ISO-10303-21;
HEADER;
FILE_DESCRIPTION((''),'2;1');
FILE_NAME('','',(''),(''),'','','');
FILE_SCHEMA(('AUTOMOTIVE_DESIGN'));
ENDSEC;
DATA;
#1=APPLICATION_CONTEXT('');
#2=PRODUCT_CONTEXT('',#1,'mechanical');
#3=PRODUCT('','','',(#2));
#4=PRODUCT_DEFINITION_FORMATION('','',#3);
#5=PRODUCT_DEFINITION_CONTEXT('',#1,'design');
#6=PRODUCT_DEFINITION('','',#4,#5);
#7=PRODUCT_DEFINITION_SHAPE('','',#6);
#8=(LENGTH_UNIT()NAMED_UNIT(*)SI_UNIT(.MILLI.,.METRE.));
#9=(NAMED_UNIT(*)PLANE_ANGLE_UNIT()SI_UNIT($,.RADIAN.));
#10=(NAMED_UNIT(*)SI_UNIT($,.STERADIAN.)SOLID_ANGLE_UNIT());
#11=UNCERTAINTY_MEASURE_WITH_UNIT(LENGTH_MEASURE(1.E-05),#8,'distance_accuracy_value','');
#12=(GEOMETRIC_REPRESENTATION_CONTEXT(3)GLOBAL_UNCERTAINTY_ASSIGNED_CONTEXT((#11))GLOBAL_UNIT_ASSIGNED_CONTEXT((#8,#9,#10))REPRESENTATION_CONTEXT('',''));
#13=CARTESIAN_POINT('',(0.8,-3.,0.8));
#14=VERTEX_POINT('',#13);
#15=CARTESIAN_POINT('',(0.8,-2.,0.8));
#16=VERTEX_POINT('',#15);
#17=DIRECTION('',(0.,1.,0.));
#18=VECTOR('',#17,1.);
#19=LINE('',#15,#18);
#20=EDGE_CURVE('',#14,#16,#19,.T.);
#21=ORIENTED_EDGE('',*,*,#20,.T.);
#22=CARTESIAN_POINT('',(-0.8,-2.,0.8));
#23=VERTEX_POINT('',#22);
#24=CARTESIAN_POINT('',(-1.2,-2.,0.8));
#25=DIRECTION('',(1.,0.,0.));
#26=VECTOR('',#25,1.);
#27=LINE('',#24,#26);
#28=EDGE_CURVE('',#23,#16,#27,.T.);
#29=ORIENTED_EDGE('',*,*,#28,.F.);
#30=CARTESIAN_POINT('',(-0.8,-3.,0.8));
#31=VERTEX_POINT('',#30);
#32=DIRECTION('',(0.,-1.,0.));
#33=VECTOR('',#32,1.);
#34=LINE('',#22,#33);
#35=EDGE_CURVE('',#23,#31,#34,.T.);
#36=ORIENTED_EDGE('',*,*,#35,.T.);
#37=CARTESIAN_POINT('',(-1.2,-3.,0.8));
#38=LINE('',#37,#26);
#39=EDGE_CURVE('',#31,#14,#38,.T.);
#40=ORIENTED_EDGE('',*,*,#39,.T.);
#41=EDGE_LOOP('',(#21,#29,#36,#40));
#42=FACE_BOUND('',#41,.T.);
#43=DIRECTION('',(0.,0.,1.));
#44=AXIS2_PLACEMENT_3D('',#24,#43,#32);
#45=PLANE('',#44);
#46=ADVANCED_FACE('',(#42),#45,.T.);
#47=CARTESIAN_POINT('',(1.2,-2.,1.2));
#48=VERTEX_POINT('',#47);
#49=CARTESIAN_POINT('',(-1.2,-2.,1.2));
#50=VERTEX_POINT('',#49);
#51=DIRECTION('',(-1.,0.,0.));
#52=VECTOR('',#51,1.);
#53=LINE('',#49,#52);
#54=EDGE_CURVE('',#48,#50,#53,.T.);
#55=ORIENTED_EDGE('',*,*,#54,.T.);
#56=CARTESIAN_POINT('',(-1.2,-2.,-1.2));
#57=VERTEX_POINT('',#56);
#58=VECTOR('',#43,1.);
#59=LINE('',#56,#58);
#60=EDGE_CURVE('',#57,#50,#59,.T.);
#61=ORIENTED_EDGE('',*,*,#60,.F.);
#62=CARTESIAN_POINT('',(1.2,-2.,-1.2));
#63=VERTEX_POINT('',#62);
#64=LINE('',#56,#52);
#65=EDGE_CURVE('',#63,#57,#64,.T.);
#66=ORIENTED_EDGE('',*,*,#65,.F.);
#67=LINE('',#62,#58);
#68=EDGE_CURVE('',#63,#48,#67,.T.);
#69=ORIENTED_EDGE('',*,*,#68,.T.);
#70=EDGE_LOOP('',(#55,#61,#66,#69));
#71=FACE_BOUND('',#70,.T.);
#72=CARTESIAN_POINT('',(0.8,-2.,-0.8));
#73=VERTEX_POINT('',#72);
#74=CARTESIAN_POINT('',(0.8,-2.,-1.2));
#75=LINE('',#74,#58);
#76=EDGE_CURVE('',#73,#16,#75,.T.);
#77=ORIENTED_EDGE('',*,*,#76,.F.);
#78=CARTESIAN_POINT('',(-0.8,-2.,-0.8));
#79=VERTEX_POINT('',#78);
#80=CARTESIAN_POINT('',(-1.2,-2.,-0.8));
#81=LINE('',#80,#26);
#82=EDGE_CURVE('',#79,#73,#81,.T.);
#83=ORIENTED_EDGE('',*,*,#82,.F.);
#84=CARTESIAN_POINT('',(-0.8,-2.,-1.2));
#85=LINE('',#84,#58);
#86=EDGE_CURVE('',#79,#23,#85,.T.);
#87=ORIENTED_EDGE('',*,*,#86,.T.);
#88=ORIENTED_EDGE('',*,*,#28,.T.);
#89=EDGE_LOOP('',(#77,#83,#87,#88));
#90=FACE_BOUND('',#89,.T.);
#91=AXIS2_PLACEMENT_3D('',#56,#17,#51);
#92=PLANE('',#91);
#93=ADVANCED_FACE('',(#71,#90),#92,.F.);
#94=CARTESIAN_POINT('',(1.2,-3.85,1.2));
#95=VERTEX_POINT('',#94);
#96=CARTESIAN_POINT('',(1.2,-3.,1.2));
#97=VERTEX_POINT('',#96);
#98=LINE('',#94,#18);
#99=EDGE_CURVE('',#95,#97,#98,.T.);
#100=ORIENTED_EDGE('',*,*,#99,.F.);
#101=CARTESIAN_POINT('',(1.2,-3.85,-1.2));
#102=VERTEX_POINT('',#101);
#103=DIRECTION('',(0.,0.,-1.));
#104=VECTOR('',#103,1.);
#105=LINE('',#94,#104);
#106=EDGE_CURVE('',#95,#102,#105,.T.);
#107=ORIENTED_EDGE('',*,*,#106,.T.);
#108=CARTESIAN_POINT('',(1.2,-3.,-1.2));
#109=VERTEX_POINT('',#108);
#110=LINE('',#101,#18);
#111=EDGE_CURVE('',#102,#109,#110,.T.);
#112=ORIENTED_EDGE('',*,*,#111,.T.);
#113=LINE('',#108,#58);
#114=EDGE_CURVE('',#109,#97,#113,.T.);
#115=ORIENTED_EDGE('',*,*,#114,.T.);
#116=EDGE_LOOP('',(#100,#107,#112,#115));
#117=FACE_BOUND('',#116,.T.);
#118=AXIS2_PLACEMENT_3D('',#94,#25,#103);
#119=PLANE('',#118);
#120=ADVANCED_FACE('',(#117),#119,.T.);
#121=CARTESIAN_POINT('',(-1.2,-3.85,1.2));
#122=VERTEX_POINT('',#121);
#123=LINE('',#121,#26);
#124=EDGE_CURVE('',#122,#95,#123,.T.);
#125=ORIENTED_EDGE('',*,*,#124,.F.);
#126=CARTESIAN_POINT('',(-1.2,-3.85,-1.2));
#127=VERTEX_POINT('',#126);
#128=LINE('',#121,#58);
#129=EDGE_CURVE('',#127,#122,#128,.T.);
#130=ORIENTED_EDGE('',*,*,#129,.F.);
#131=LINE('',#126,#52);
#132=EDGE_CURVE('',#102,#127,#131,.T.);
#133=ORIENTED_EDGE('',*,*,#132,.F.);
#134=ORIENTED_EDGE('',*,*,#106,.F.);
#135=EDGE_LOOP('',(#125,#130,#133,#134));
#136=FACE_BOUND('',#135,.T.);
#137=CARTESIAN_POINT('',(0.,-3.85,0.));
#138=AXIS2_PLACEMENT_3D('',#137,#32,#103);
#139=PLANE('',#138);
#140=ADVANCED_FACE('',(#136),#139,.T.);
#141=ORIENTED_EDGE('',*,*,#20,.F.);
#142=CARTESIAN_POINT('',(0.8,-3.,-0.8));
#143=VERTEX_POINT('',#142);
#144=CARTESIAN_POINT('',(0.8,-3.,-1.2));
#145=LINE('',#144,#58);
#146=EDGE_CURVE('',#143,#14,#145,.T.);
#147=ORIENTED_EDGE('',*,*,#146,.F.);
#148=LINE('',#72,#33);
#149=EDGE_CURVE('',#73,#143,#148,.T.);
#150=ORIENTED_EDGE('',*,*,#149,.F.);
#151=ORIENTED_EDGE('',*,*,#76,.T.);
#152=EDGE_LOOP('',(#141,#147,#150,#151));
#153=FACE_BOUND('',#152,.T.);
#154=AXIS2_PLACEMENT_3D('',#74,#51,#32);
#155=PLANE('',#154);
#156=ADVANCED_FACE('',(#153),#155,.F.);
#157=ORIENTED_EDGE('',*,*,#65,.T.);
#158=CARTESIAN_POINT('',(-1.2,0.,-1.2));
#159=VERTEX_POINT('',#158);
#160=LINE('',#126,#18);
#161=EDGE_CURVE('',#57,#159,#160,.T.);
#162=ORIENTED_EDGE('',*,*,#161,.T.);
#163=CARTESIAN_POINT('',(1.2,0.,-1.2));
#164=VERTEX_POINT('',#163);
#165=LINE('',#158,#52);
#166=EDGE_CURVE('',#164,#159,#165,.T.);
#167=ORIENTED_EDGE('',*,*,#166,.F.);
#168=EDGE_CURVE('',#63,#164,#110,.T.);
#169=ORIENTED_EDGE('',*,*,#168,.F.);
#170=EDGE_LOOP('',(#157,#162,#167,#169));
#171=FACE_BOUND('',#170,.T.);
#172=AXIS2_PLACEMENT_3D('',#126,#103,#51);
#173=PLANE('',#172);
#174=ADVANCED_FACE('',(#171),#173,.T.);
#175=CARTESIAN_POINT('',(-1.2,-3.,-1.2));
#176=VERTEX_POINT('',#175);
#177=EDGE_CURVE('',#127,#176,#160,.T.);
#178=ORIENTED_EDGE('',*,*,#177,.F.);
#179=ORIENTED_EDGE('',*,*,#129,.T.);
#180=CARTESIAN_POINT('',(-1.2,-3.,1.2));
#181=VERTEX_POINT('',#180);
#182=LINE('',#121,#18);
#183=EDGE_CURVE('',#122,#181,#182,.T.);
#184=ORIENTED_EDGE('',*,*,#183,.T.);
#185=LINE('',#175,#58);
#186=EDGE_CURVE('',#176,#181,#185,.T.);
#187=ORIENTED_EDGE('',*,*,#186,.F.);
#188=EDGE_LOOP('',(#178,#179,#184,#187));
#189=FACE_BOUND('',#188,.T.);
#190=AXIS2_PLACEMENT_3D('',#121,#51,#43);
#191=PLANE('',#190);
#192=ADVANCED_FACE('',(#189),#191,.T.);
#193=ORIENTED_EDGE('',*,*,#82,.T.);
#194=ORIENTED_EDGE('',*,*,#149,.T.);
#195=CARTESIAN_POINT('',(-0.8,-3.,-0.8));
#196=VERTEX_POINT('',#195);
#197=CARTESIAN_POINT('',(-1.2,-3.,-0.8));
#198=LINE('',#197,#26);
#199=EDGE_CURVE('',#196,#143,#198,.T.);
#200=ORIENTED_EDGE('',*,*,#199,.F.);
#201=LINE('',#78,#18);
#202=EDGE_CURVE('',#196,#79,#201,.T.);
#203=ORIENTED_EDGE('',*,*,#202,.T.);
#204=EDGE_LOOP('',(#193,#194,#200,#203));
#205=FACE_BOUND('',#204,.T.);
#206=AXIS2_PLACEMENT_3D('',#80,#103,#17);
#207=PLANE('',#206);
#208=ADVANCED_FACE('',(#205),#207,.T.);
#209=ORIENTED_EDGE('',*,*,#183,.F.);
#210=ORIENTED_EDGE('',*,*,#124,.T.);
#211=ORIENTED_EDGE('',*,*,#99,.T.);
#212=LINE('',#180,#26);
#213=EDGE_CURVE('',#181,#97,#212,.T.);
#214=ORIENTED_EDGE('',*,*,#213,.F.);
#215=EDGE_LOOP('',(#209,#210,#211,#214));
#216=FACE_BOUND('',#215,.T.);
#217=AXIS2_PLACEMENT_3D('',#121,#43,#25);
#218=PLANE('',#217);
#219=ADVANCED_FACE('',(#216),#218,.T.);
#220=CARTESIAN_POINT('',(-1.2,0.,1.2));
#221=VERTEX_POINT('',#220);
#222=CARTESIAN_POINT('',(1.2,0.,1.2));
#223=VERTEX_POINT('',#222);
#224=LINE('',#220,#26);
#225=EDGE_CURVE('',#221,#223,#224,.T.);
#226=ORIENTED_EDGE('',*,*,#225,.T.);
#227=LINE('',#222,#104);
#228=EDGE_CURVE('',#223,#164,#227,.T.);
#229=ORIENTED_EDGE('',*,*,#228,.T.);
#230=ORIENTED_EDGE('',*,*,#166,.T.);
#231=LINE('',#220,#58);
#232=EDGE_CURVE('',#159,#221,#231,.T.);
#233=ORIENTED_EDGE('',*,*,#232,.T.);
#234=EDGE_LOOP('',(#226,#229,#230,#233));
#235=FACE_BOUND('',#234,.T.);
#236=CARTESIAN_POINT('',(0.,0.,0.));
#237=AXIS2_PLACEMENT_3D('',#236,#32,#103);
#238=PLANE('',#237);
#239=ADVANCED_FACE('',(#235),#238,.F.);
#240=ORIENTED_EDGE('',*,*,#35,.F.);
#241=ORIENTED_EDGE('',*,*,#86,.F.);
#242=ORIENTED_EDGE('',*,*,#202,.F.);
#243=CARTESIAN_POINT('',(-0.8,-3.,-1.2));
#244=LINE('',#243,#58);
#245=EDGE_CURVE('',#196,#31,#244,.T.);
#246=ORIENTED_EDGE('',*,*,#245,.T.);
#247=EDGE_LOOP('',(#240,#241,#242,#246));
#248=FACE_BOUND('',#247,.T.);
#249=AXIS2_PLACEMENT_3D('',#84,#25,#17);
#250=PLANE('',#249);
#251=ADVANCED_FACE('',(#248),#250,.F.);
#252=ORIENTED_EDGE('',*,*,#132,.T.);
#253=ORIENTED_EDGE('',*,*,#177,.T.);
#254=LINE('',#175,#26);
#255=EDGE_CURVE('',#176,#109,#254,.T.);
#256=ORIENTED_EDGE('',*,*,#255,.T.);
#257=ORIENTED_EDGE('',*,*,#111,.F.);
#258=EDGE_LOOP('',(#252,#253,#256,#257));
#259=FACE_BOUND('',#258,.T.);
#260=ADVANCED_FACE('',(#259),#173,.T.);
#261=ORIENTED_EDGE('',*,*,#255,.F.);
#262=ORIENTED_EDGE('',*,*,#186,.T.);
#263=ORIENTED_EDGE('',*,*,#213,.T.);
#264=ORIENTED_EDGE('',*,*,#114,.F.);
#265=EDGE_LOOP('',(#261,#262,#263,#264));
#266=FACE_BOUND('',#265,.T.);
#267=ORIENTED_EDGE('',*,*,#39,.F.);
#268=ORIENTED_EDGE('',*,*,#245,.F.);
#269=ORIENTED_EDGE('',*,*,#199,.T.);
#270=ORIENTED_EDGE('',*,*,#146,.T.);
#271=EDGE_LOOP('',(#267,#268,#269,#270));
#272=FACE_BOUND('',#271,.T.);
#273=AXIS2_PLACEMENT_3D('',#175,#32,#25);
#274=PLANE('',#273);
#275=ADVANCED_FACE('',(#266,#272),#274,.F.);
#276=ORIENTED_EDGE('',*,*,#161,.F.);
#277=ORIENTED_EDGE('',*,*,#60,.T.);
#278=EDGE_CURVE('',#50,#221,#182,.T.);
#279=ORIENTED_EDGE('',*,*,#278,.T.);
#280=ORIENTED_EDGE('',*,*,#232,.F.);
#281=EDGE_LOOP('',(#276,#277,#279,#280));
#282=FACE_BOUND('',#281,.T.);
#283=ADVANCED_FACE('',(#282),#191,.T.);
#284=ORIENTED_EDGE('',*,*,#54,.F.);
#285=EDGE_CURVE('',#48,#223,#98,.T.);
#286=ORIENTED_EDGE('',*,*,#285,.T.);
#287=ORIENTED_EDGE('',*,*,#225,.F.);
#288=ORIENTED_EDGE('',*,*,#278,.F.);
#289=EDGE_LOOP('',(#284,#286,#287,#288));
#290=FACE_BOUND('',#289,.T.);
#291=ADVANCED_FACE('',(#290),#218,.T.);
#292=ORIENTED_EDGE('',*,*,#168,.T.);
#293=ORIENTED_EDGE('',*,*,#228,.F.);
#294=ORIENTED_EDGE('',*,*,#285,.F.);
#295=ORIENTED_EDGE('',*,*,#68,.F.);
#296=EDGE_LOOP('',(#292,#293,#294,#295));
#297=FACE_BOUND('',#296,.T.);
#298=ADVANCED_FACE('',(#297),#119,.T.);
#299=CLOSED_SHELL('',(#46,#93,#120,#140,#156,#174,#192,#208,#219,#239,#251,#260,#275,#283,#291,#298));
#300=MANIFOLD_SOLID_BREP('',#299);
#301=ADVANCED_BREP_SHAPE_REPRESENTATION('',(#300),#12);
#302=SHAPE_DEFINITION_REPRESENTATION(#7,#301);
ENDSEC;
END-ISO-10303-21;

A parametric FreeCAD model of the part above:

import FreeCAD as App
import Part
import Sketcher

V = App.Vector
Q = App.Units.Quantity

doc = App.newDocument("Part")
body = doc.addObject("PartDesign::Body", "Body")

# Sketch on XZ plane
sketch1 = body.newObject("Sketcher::SketchObject", "Sketch")
sketch1.AttachmentSupport = (doc.getObject("XZ_Plane"), [""])
sketch1.MapMode = "FlatFace"
sketch1.addGeometry(Part.LineSegment(V(-1.2, -1.2, 0), V(-1.2, 1.2, 0)), False)
sketch1.addGeometry(Part.LineSegment(V(-1.2, 1.2, 0), V(1.2, 1.2, 0)), False)
sketch1.addGeometry(Part.LineSegment(V(1.2, 1.2, 0), V(1.2, -1.2, 0)), False)
sketch1.addGeometry(Part.LineSegment(V(1.2, -1.2, 0), V(-1.2, -1.2, 0)), False)
sketch1.addConstraint(Sketcher.Constraint("Coincident", 0, 2, 1, 1))
sketch1.addConstraint(Sketcher.Constraint("Coincident", 1, 2, 2, 1))
sketch1.addConstraint(Sketcher.Constraint("Coincident", 2, 2, 3, 1))
sketch1.addConstraint(Sketcher.Constraint("Coincident", 3, 2, 0, 1))
sketch1.addConstraint(Sketcher.Constraint("Vertical", 0))
sketch1.addConstraint(Sketcher.Constraint("Horizontal", 1))
sketch1.addConstraint(Sketcher.Constraint("Vertical", 2))
sketch1.addConstraint(Sketcher.Constraint("Horizontal", 3))
sketch1.addConstraint(Sketcher.Constraint("Symmetric", 0, 2, 2, 2, -1, 1))
sketch1.addConstraint(Sketcher.Constraint("Equal", 3, 0))
sketch1.addConstraint(Sketcher.Constraint("DistanceX", 1, 1, 1, 2, Q("2.4 mm")))
pad1 = body.newObject("PartDesign::Pad", "Pad")
pad1.Profile = sketch1
pad1.Length = 3.85

# Sketch on XY plane
sketch2 = body.newObject("Sketcher::SketchObject", "Sketch001")
sketch2.AttachmentSupport = (doc.getObject("XY_Plane"), [""])
sketch2.MapMode = "FlatFace"
sketch2.AttachmentOffset = App.Placement(V(0, 0, 1.2), App.Rotation())
sketch2.addGeometry(Part.LineSegment(V(-1.2, -2, 0), V(-1.2, -3, 0)), False)
sketch2.addGeometry(Part.LineSegment(V(-1.2, -3, 0), V(-0.8, -3, 0)), False)
sketch2.addGeometry(Part.LineSegment(V(-0.8, -3, 0), V(-0.8, -2, 0)), False)
sketch2.addGeometry(Part.LineSegment(V(-0.8, -2, 0), V(-1.2, -2, 0)), False)
sketch2.addGeometry(Part.LineSegment(V(0.8, -2, 0), V(0.8, -3, 0)), False)
sketch2.addGeometry(Part.LineSegment(V(0.8, -3, 0), V(1.2, -3, 0)), False)
sketch2.addGeometry(Part.LineSegment(V(1.2, -3, 0), V(1.2, -2, 0)), False)
sketch2.addGeometry(Part.LineSegment(V(1.2, -2, 0), V(0.8, -2, 0)), False)
sketch2.addConstraint(Sketcher.Constraint("Coincident", 0, 2, 1, 1))
sketch2.addConstraint(Sketcher.Constraint("Coincident", 1, 2, 2, 1))
sketch2.addConstraint(Sketcher.Constraint("Coincident", 2, 2, 3, 1))
sketch2.addConstraint(Sketcher.Constraint("Coincident", 3, 2, 0, 1))
sketch2.addConstraint(Sketcher.Constraint("Coincident", 4, 2, 5, 1))
sketch2.addConstraint(Sketcher.Constraint("Coincident", 5, 2, 6, 1))
sketch2.addConstraint(Sketcher.Constraint("Coincident", 6, 2, 7, 1))
sketch2.addConstraint(Sketcher.Constraint("Coincident", 7, 2, 4, 1))
sketch2.addConstraint(Sketcher.Constraint("Vertical", 0))
sketch2.addConstraint(Sketcher.Constraint("Horizontal", 1))
sketch2.addConstraint(Sketcher.Constraint("Vertical", 2))
sketch2.addConstraint(Sketcher.Constraint("Horizontal", 3))
sketch2.addConstraint(Sketcher.Constraint("Vertical", 4))
sketch2.addConstraint(Sketcher.Constraint("Horizontal", 5))
sketch2.addConstraint(Sketcher.Constraint("Vertical", 6))
sketch2.addConstraint(Sketcher.Constraint("Horizontal", 7))
sketch2.addConstraint(Sketcher.Constraint("Symmetric", 1, 2, 4, 2, -2))
sketch2.addConstraint(Sketcher.Constraint("Symmetric", 3, 2, 6, 2, -2))
sketch2.addConstraint(Sketcher.Constraint("DistanceY", 0, 2, 0, 1, Q("1 mm")))
sketch2.addConstraint(Sketcher.Constraint("DistanceX", 1, 1, 1, 2, Q("0.4 mm")))
sketch2.addConstraint(Sketcher.Constraint("DistanceY", 0, 2, -1, 1, Q("3 mm")))
sketch2.addConstraint(Sketcher.Constraint("DistanceX", 0, 2, 4, 2, Q("2 mm")))
pocket1 = body.newObject("PartDesign::Pocket", "Pocket")
pocket1.Profile = sketch2
pocket1.Length = 2.4

# Sketch on YZ plane
sketch3 = body.newObject("Sketcher::SketchObject", "Sketch002")
sketch3.AttachmentSupport = (doc.getObject("YZ_Plane"), [""])
sketch3.MapMode = "FlatFace"
sketch3.AttachmentOffset = App.Placement(V(0, 0, 1.2), App.Rotation())
sketch3.addGeometry(Part.LineSegment(V(-2, -1.2, 0), V(-3, -1.2, 0)), False)
sketch3.addGeometry(Part.LineSegment(V(-3, -1.2, 0), V(-3, -0.8, 0)), False)
sketch3.addGeometry(Part.LineSegment(V(-3, -0.8, 0), V(-2, -0.8, 0)), False)
sketch3.addGeometry(Part.LineSegment(V(-2, -0.8, 0), V(-2, -1.2, 0)), False)
sketch3.addGeometry(Part.LineSegment(V(-2, 0.8, 0), V(-3, 0.8, 0)), False)
sketch3.addGeometry(Part.LineSegment(V(-3, 0.8, 0), V(-3, 1.2, 0)), False)
sketch3.addGeometry(Part.LineSegment(V(-3, 1.2, 0), V(-2, 1.2, 0)), False)
sketch3.addGeometry(Part.LineSegment(V(-2, 1.2, 0), V(-2, 0.8, 0)), False)
sketch3.addConstraint(Sketcher.Constraint("Coincident", 0, 2, 1, 1))
sketch3.addConstraint(Sketcher.Constraint("Coincident", 1, 2, 2, 1))
sketch3.addConstraint(Sketcher.Constraint("Coincident", 2, 2, 3, 1))
sketch3.addConstraint(Sketcher.Constraint("Coincident", 3, 2, 0, 1))
sketch3.addConstraint(Sketcher.Constraint("Coincident", 4, 2, 5, 1))
sketch3.addConstraint(Sketcher.Constraint("Coincident", 5, 2, 6, 1))
sketch3.addConstraint(Sketcher.Constraint("Coincident", 6, 2, 7, 1))
sketch3.addConstraint(Sketcher.Constraint("Coincident", 7, 2, 4, 1))
sketch3.addConstraint(Sketcher.Constraint("Horizontal", 0))
sketch3.addConstraint(Sketcher.Constraint("Vertical", 1))
sketch3.addConstraint(Sketcher.Constraint("Horizontal", 2))
sketch3.addConstraint(Sketcher.Constraint("Vertical", 3))
sketch3.addConstraint(Sketcher.Constraint("Horizontal", 4))
sketch3.addConstraint(Sketcher.Constraint("Vertical", 5))
sketch3.addConstraint(Sketcher.Constraint("Horizontal", 6))
sketch3.addConstraint(Sketcher.Constraint("Vertical", 7))
sketch3.addConstraint(Sketcher.Constraint("Symmetric", 1, 2, 4, 2, -1))
sketch3.addConstraint(Sketcher.Constraint("Symmetric", 3, 2, 6, 2, -1))
sketch3.addConstraint(Sketcher.Constraint("DistanceX", 0, 2, 0, 1, Q("1 mm")))
sketch3.addConstraint(Sketcher.Constraint("DistanceY", 1, 1, 1, 2, Q("0.4 mm")))
sketch3.addConstraint(Sketcher.Constraint("DistanceX", 0, 2, -1, 1, Q("3 mm")))
sketch3.addConstraint(Sketcher.Constraint("DistanceY", 0, 2, 4, 2, Q("2 mm")))
pocket2 = body.newObject("PartDesign::Pocket", "Pocket001")
pocket2.Profile = sketch3
pocket2.Length = 2.4

doc.recompute()
